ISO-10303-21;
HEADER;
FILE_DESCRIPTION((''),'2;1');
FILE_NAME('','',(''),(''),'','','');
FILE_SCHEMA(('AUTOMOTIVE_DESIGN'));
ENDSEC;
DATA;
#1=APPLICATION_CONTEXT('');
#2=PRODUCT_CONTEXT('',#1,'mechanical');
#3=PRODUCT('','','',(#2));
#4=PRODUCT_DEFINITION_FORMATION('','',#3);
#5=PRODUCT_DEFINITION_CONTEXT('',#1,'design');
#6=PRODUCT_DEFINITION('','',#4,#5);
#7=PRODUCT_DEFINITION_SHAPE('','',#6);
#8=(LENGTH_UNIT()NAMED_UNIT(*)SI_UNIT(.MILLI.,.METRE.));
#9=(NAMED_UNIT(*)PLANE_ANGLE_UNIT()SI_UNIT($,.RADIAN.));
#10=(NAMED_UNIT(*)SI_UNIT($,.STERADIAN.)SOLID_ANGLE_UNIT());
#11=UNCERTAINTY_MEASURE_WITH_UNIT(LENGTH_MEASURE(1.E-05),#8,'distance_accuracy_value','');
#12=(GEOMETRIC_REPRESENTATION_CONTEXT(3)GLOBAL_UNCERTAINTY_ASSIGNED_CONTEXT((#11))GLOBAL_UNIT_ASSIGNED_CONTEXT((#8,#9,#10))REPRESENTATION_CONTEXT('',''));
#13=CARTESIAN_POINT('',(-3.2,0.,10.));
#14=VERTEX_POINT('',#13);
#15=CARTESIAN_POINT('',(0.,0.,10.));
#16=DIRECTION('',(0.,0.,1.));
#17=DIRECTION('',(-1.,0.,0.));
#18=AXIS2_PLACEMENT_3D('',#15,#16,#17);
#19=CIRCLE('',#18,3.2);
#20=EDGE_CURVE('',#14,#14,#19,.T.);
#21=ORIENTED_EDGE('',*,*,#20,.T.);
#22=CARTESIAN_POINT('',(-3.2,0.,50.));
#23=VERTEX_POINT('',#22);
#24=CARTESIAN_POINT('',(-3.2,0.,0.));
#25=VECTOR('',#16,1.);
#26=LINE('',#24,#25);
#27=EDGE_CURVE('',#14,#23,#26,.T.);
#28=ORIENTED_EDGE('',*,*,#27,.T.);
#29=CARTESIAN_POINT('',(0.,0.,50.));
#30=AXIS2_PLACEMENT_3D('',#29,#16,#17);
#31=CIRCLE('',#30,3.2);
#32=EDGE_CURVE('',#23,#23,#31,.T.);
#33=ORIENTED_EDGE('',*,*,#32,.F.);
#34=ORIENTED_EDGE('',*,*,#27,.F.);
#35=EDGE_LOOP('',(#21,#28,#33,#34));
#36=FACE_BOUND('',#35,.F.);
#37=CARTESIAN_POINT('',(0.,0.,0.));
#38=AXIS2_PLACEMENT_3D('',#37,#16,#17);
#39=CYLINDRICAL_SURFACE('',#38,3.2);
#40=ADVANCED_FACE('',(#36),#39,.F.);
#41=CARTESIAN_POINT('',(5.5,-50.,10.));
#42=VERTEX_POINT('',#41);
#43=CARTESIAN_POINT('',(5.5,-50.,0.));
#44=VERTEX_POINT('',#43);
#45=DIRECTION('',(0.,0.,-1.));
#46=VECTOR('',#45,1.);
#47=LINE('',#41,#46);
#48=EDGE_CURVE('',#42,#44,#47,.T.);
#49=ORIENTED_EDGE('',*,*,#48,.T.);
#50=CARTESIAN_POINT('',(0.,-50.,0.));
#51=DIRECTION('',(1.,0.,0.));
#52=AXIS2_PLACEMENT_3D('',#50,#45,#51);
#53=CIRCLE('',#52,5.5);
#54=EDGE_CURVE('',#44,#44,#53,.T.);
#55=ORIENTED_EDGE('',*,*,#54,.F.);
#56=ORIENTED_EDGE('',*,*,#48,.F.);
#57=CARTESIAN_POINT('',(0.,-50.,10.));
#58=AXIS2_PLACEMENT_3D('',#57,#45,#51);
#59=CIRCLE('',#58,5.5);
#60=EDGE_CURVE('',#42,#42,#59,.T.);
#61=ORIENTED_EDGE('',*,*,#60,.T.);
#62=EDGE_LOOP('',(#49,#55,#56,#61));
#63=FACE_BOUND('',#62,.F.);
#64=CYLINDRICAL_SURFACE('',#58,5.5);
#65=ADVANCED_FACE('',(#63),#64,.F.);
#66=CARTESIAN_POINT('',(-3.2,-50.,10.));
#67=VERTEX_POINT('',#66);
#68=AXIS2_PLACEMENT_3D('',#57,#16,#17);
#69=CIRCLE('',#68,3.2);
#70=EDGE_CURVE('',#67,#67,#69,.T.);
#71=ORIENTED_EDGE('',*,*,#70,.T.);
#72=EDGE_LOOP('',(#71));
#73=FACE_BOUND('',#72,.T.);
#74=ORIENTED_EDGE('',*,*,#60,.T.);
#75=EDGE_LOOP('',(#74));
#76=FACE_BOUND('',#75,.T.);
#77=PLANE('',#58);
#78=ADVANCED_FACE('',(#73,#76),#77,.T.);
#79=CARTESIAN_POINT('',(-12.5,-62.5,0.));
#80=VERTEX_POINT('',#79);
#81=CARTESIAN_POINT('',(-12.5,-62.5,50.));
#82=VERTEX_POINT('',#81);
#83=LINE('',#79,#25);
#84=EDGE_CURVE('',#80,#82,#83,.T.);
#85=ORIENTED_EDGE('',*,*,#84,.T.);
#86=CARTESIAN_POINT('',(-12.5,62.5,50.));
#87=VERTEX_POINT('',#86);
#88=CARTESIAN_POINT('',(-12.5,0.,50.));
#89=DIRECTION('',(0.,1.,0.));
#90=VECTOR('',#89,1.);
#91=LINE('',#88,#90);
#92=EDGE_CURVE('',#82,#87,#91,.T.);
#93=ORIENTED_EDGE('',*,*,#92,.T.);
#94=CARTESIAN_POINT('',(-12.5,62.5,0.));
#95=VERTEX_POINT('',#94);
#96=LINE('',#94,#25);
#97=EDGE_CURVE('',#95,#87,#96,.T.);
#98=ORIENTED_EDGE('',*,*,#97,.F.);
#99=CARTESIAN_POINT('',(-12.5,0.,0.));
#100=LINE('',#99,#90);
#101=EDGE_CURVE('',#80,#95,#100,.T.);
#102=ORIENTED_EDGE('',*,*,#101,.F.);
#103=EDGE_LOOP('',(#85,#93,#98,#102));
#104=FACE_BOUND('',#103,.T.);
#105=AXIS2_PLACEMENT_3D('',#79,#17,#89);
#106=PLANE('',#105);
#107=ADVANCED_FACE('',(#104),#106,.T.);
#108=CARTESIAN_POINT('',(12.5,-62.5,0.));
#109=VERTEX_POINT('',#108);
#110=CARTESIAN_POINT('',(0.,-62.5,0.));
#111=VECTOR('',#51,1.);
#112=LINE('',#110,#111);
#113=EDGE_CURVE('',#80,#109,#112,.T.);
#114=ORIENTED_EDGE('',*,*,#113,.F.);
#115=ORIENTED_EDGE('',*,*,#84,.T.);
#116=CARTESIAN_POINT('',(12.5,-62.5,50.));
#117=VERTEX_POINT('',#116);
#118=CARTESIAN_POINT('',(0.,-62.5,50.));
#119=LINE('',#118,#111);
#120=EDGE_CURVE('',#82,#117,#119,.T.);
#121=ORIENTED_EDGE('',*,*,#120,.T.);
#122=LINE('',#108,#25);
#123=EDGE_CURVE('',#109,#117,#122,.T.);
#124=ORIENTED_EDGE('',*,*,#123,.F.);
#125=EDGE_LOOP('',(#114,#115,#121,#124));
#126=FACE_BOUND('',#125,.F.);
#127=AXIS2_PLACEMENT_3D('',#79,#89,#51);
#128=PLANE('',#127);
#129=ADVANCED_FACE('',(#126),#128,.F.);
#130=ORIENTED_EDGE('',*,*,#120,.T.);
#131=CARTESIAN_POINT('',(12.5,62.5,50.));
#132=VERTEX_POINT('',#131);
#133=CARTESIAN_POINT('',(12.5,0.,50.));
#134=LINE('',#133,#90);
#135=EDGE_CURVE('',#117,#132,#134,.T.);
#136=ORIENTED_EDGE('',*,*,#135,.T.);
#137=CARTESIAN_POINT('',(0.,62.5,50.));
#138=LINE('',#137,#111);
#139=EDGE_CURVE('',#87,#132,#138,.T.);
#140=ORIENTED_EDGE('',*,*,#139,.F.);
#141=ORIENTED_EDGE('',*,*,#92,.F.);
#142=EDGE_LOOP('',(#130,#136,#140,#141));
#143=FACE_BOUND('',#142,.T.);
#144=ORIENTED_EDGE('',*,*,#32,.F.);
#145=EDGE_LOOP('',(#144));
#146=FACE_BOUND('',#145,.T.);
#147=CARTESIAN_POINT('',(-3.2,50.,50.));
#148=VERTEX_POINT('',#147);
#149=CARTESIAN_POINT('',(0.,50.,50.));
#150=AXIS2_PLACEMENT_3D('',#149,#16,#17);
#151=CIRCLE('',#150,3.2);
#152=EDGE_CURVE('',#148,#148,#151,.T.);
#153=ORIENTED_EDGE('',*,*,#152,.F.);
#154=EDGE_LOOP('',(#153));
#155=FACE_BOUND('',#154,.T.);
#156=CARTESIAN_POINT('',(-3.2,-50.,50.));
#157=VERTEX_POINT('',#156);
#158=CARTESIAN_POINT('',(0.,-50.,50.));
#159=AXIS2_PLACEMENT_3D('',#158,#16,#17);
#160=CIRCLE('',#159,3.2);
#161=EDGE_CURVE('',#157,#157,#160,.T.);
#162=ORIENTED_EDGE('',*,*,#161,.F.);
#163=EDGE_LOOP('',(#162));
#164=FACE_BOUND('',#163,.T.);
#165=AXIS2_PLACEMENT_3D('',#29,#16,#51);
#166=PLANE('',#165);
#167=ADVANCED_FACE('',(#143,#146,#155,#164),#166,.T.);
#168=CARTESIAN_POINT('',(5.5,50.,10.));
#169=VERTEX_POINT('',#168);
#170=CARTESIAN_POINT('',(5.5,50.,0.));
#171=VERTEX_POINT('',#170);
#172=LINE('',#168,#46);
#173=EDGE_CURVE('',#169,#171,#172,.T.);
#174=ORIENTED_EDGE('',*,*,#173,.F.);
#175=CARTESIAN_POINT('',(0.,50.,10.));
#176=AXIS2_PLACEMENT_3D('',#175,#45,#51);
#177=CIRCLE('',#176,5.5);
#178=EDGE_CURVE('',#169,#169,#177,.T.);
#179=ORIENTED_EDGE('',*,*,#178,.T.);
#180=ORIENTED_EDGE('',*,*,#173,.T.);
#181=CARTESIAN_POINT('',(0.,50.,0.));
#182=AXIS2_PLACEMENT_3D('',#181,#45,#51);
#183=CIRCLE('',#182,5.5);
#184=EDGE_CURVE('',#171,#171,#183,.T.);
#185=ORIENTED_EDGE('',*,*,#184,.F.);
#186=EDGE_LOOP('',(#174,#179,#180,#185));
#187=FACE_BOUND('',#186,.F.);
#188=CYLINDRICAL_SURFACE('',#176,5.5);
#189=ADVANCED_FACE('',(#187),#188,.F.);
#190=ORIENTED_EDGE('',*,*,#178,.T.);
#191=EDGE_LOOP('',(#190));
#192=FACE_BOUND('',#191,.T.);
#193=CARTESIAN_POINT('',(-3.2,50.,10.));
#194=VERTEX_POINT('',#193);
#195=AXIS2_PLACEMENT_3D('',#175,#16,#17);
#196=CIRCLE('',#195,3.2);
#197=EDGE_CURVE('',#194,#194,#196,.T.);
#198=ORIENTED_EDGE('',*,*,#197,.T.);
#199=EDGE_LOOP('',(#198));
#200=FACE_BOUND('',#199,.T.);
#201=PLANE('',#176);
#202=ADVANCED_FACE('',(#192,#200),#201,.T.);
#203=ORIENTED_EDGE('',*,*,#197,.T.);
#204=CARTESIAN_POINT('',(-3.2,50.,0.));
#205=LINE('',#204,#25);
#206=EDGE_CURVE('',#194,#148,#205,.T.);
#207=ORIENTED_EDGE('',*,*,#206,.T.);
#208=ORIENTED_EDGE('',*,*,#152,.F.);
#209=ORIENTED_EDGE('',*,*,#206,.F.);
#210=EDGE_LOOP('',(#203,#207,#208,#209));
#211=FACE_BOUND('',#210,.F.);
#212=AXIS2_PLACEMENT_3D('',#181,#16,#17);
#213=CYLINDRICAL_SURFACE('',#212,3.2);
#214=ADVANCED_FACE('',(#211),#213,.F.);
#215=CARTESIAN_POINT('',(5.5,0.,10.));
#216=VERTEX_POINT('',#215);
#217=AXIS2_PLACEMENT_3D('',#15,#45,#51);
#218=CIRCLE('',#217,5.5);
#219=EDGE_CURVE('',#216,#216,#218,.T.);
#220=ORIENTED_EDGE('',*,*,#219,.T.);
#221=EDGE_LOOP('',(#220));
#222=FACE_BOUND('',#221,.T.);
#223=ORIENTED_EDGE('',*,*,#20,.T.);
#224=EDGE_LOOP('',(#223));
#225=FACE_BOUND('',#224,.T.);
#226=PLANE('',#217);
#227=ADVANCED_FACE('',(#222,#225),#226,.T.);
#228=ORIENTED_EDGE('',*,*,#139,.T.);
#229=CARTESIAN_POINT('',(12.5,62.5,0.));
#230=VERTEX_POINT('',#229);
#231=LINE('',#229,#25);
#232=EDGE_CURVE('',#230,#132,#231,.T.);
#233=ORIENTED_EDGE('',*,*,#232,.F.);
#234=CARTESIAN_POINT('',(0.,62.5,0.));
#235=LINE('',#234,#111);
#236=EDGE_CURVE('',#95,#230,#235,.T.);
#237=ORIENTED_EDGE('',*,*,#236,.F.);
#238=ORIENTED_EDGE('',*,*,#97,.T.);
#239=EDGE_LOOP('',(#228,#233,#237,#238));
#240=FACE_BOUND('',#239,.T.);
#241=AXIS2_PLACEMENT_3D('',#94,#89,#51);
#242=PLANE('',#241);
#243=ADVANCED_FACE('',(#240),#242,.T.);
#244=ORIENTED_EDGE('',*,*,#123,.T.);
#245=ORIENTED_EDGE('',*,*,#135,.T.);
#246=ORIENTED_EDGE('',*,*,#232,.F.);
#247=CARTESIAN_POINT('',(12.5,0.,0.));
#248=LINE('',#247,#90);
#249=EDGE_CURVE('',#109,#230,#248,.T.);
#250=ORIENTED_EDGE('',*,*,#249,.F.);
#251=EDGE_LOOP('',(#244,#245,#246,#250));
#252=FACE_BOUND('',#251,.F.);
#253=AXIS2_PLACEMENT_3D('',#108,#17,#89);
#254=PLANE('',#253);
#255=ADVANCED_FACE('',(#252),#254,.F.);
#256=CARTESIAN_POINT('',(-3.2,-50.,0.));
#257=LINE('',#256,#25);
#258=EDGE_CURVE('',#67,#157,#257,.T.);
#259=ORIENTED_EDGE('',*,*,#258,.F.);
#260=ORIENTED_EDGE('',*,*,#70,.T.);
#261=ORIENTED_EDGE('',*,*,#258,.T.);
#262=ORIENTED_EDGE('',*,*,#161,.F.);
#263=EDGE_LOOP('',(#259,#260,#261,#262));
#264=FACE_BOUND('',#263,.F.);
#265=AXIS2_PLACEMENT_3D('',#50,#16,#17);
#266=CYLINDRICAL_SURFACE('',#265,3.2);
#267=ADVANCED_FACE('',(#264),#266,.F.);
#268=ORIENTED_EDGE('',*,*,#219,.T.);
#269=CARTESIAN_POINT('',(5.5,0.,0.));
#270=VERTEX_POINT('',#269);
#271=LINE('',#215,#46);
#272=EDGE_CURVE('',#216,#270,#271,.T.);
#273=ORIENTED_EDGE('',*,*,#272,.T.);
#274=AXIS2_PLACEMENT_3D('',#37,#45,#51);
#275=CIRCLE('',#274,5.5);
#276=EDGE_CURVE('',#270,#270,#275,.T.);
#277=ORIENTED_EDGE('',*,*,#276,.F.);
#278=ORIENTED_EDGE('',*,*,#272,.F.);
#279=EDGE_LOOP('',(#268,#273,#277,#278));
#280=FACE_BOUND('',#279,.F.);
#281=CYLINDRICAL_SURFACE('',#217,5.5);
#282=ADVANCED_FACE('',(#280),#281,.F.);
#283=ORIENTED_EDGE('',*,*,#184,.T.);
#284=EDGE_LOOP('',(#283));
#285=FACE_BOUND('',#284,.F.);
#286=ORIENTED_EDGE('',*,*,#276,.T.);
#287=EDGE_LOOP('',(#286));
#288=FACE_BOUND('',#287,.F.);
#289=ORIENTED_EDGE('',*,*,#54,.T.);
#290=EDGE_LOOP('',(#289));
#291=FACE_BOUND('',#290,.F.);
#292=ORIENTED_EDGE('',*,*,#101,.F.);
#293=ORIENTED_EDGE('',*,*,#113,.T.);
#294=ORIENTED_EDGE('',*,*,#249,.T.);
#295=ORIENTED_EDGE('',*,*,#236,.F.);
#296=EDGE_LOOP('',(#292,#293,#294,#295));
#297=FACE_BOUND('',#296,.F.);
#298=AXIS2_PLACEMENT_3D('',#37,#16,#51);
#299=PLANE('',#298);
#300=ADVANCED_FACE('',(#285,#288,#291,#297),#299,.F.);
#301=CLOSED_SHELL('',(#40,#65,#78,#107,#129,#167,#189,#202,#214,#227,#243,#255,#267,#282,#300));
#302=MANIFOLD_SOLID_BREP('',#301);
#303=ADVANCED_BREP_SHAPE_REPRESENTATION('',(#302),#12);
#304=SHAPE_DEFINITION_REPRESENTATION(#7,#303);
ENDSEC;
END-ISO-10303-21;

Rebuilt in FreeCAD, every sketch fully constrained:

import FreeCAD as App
import Part
import Sketcher
Q = App.Units.Quantity


def add_polygon(sketch, points):
    """Adds a closed chain of lines whose ends are joined by coincident constraints."""
    first, n = sketch.GeometryCount, len(points)
    for a, b in zip(points, points[1:] + points[:1]):
        sketch.addGeometry(Part.LineSegment(App.Vector(*a, 0), App.Vector(*b, 0)), False)
    for i in range(n):
        sketch.addConstraint(Sketcher.Constraint("Coincident", first + i, 2, first + (i + 1) % n, 1))

doc = App.newDocument("Part")
body = doc.addObject("PartDesign::Body", "Body")

sketch1 = body.newObject("Sketcher::SketchObject", "Sketch")
sketch1.AttachmentSupport = (doc.getObject("XY_Plane"), [""])
sketch1.MapMode = "FlatFace"
add_polygon(sketch1, [(-12, 62), (-12, -62), (12, -62), (12, 62)])
sketch1.addConstraint([
    Sketcher.Constraint("Vertical", 0),
    Sketcher.Constraint("Horizontal", 1),
    Sketcher.Constraint("Vertical", 2),
    Sketcher.Constraint("Horizontal", 3),
    Sketcher.Constraint("Symmetric", 0, 2, 2, 2, -1, 1),
    Sketcher.Constraint("DistanceX", 1, 1, 1, 2, Q("25 mm")),
    Sketcher.Constraint("DistanceY", 0, 2, 0, 1, Q("125 mm")),
])
pad1 = body.newObject("PartDesign::Pad", "Pad")
pad1.Profile = sketch1
pad1.Length = 50

sketch2 = body.newObject("Sketcher::SketchObject", "Sketch001")
sketch2.AttachmentSupport = (doc.getObject("XY_Plane"), [""])
sketch2.MapMode = "FlatFace"
sketch2.addGeometry([
    Part.Circle(App.Vector(0, -50, 0), App.Vector(0, 0, 1), 3.2),
    Part.Circle(App.Vector(0, 50, 0), App.Vector(0, 0, 1), 3.2),
    Part.Circle(App.Vector(0, 0, 0), App.Vector(0, 0, 1), 3.2),
], False)
sketch2.addConstraint([
    Sketcher.Constraint("Coincident", 2, 3, -1, 1),
    Sketcher.Constraint("Equal", 0, 1),
    Sketcher.Constraint("Equal", 1, 2),
    Sketcher.Constraint("Symmetric", 0, 3, 1, 3, -1, 1),
    Sketcher.Constraint("PointOnObject", 0, 3, -2),
    Sketcher.Constraint("Diameter", 0, Q("6.4 mm")),
    Sketcher.Constraint("DistanceY", 0, 3, -1, 1, Q("50 mm")),
])
doc.recompute()
hole = body.newObject("PartDesign::Hole", "Hole")
hole.Profile = sketch2
hole.ThreadType = "None"
hole.Diameter = 6.4
hole.DepthType = "ThroughAll"
hole.HoleCutType = "Counterbore"
hole.HoleCutDiameter = 11
hole.HoleCutDepth = 10
hole.Reversed = True

doc.recompute()
